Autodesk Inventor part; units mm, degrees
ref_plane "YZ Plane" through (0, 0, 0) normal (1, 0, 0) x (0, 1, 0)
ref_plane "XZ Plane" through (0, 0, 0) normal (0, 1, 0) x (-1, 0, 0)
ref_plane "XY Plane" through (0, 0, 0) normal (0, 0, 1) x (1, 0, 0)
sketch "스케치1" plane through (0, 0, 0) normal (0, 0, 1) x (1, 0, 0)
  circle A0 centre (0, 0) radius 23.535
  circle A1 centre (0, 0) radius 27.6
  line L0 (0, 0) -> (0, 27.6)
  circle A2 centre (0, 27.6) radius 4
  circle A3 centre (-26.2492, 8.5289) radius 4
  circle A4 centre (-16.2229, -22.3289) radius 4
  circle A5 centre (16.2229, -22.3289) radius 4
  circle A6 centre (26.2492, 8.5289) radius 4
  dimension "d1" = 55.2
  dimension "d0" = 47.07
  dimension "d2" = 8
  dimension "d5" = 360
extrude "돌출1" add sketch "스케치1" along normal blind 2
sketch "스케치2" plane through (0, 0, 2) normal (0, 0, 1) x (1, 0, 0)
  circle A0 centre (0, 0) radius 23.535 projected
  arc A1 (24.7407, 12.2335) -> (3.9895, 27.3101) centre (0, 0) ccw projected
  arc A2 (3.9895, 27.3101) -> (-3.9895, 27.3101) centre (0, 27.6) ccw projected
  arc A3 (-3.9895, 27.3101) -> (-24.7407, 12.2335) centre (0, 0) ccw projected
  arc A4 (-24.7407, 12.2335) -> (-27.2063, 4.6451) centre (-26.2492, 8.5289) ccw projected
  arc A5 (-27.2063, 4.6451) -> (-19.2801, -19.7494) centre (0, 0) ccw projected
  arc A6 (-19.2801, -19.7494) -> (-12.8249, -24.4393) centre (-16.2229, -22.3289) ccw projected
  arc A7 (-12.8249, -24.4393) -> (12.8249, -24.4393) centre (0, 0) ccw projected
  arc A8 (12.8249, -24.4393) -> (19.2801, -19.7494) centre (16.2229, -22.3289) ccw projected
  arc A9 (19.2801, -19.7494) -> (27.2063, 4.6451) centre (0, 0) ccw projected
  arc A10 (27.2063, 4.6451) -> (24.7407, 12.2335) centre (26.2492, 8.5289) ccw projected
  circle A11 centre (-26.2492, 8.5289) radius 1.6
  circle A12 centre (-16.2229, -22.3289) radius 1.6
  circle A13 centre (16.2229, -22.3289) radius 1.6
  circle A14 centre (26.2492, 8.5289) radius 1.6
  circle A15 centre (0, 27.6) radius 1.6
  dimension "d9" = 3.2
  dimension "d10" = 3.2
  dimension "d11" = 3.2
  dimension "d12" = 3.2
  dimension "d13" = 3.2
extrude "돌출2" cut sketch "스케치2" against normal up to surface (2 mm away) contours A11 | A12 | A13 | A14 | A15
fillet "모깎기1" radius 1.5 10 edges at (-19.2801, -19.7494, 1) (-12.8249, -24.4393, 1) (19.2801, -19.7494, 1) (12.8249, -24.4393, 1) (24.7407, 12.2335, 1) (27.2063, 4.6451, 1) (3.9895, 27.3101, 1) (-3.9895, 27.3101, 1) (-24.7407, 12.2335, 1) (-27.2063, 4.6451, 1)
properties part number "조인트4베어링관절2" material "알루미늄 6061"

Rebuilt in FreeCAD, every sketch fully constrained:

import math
import FreeCAD as App
import Part
import Sketcher
Q = App.Units.Quantity


def edges_at(feature, points):
    """Names of the edges that pass closest to the given points."""
    edges = feature.Shape.Edges
    near = lambda p: min(range(len(edges)), key=lambda i: edges[i].distToShape(Part.Vertex(*p))[0])
    return sorted({f"Edge{near(p) + 1}" for p in points})

doc = App.newDocument("Part")
params = doc.addObject("Spreadsheet::Sheet", "Params")
for row, (alias, value) in enumerate([
    ("sketch1_radius", "4 mm"),
    ("sketch1_radius2", "27.6 mm"),
    ("sketch1_diameter", "47.07 mm"),
    ("pad1_length", "2 mm"),
    ("sketch2_diameter", "3.2 mm"),
    ("pocket1_length", "2 mm"),
    ("fillet_radius", "1.5 mm"),
], start=1):
    params.set(f"A{row}", alias)
    params.set(f"B{row}", "=" + value)
    params.setAlias(f"B{row}", alias)

body = doc.addObject("PartDesign::Body", "Body")

sketch1 = body.newObject("Sketcher::SketchObject", "Sketch")
sketch1.AttachmentSupport = (doc.getObject("XY_Plane"), [""])
sketch1.MapMode = "FlatFace"
sketch1.addGeometry([
    Part.ArcOfCircle(Part.Circle(App.Vector(0, 0, 0), App.Vector(0, 0, 1), 27.6), math.radians(26), math.radians(82)),
    Part.ArcOfCircle(Part.Circle(App.Vector(0, 27.6, 0), App.Vector(0, 0, 1), 4), math.radians(-4), math.radians(184)),
    Part.ArcOfCircle(Part.Circle(App.Vector(0, 0, 0), App.Vector(0, 0, 1), 27.6), math.radians(98), math.radians(154)),
    Part.ArcOfCircle(Part.Circle(App.Vector(-26.2, 8.5, 0), App.Vector(0, 0, 1), 4), math.radians(68), math.radians(256)),
    Part.ArcOfCircle(Part.Circle(App.Vector(0, 0, 0), App.Vector(0, 0, 1), 27.6), math.radians(170), math.radians(226)),
    Part.ArcOfCircle(Part.Circle(App.Vector(-16.2, -22.3, 0), App.Vector(0, 0, 1), 4), math.radians(140), math.radians(328)),
    Part.ArcOfCircle(Part.Circle(App.Vector(0, 0, 0), App.Vector(0, 0, 1), 27.6), math.radians(-118), math.radians(-62)),
    Part.ArcOfCircle(Part.Circle(App.Vector(16.2, -22.3, 0), App.Vector(0, 0, 1), 4), math.radians(-148), math.radians(40)),
    Part.ArcOfCircle(Part.Circle(App.Vector(0, 0, 0), App.Vector(0, 0, 1), 27.6), math.radians(-46), math.radians(10)),
    Part.ArcOfCircle(Part.Circle(App.Vector(26.2, 8.5, 0), App.Vector(0, 0, 1), 4), math.radians(-76), math.radians(112)),
    Part.Circle(App.Vector(0, 0, 0), App.Vector(0, 0, 1), 23.5),
], False)
sketch1.addConstraint([
    Sketcher.Constraint("Coincident", 0, 2, 1, 1),
    Sketcher.Constraint("Coincident", 1, 2, 2, 1),
    Sketcher.Constraint("Coincident", 2, 2, 3, 1),
    Sketcher.Constraint("Coincident", 3, 2, 4, 1),
    Sketcher.Constraint("Coincident", 4, 2, 5, 1),
    Sketcher.Constraint("Coincident", 5, 2, 6, 1),
    Sketcher.Constraint("Coincident", 6, 2, 7, 1),
    Sketcher.Constraint("Coincident", 7, 2, 8, 1),
    Sketcher.Constraint("Coincident", 8, 2, 9, 1),
    Sketcher.Constraint("Coincident", 9, 2, 0, 1),
    Sketcher.Constraint("Coincident", 0, 3, -1, 1),
    Sketcher.Constraint("Coincident", 2, 3, -1, 1),
    Sketcher.Constraint("Coincident", 4, 3, -1, 1),
    Sketcher.Constraint("Coincident", 6, 3, -1, 1),
    Sketcher.Constraint("Coincident", 8, 3, -1, 1),
    Sketcher.Constraint("Coincident", 10, 3, -1, 1),
    Sketcher.Constraint("Equal", 0, 2),
    Sketcher.Constraint("Equal", 1, 3),
    Sketcher.Constraint("Equal", 2, 4),
    Sketcher.Constraint("Equal", 3, 5),
    Sketcher.Constraint("Equal", 4, 6),
    Sketcher.Constraint("Equal", 5, 7),
    Sketcher.Constraint("Equal", 6, 8),
    Sketcher.Constraint("Equal", 7, 9),
    Sketcher.Constraint("Symmetric", 5, 3, 7, 3, -2),
    Sketcher.Constraint("Symmetric", 3, 3, 9, 3, -2),
    Sketcher.Constraint("PointOnObject", 1, 3, -2),
    Sketcher.Constraint("Radius", 1, Q("4 mm")),
    Sketcher.Constraint("Radius", 0, Q("27.6 mm")),
    Sketcher.Constraint("Diameter", 10, Q("47.07 mm")),
    Sketcher.Constraint("DistanceY", -1, 1, 1, 3, Q("27.6 mm")),
    Sketcher.Constraint("DistanceX", 4, 2, -1, 1, Q("19.28 mm")),
    Sketcher.Constraint("DistanceY", 5, 2, 4, 2, Q("4.69 mm")),
    Sketcher.Constraint("DistanceY", -1, 1, 3, 3, Q("8.529 mm")),
    Sketcher.Constraint("DistanceY", -1, 1, 3, 2, Q("4.645 mm")),
])
sketch1.setExpression("Constraints[27]", "Params.sketch1_radius")
sketch1.setExpression("Constraints[28]", "Params.sketch1_radius2")
sketch1.setExpression("Constraints[29]", "Params.sketch1_diameter")
pad1 = body.newObject("PartDesign::Pad", "Pad")
pad1.Profile = sketch1
pad1.setExpression("Length", "Params.pad1_length")

sketch2 = body.newObject("Sketcher::SketchObject", "Sketch001")
sketch2.AttachmentSupport = (doc.getObject("XY_Plane"), [""])
sketch2.MapMode = "FlatFace"
sketch2.AttachmentOffset = App.Placement(App.Vector(0, 0, 2), App.Rotation())
sketch2.addGeometry([
    Part.Circle(App.Vector(-26.2, 8.5, 0), App.Vector(0, 0, 1), 1.6),
    Part.Circle(App.Vector(-16.2, -22.3, 0), App.Vector(0, 0, 1), 1.6),
    Part.Circle(App.Vector(16.2, -22.3, 0), App.Vector(0, 0, 1), 1.6),
    Part.Circle(App.Vector(26.2, 8.5, 0), App.Vector(0, 0, 1), 1.6),
    Part.Circle(App.Vector(0, 27.6, 0), App.Vector(0, 0, 1), 1.6),
], False)
sketch2.addConstraint([
    Sketcher.Constraint("Equal", 0, 1),
    Sketcher.Constraint("Equal", 1, 2),
    Sketcher.Constraint("Equal", 2, 3),
    Sketcher.Constraint("Equal", 3, 4),
    Sketcher.Constraint("Symmetric", 1, 3, 2, 3, -2),
    Sketcher.Constraint("Symmetric", 0, 3, 3, 3, -2),
    Sketcher.Constraint("PointOnObject", 4, 3, -2),
    Sketcher.Constraint("Diameter", 0, Q("3.2 mm")),
    Sketcher.Constraint("DistanceY", -1, 1, 4, 3, Q("27.6 mm")),
    Sketcher.Constraint("DistanceY", -1, 1, 0, 3, Q("8.529 mm")),
    Sketcher.Constraint("DistanceX", 1, 3, -1, 1, Q("16.223 mm")),
    Sketcher.Constraint("DistanceY", 1, 3, -1, 1, Q("22.329 mm")),
    Sketcher.Constraint("DistanceX", 0, 3, 2, 3, Q("42.472 mm")),
])
sketch2.setExpression("Constraints[7]", "Params.sketch2_diameter")
pocket1 = body.newObject("PartDesign::Pocket", "Pocket")
pocket1.Profile = sketch2
pocket1.setExpression("Length", "Params.pocket1_length")
doc.recompute()

fillet = body.newObject("PartDesign::Fillet", "Fillet")
fillet.Base = (pocket1, edges_at(pocket1, [
    (-19.28, -19.749, 1),
    (-12.825, -24.439, 1),
    (19.28, -19.749, 1),
    (12.825, -24.439, 1),
    (24.741, 12.233, 1),
    (27.206, 4.645, 1),
    (3.99, 27.31, 1),
    (-3.99, 27.31, 1),
    (-24.741, 12.233, 1),
    (-27.206, 4.645, 1),
]))
fillet.setExpression("Radius", "Params.fillet_radius")

doc.recompute()
